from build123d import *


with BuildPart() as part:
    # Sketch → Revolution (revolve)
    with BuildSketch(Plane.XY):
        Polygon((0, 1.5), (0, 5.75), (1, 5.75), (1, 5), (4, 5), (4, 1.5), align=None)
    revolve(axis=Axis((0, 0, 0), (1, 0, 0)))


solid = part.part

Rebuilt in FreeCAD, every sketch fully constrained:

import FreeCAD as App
import Part
import Sketcher

V = App.Vector
Q = App.Units.Quantity

doc = App.newDocument("Part")
body = doc.addObject("PartDesign::Body", "Body")

sketch1 = body.newObject("Sketcher::SketchObject", "Sketch")
sketch1.AttachmentSupport = (doc.getObject("XY_Plane"), [""])
sketch1.MapMode = "FlatFace"
sketch1.addGeometry(Part.LineSegment(V(0, 5.8, 0), V(0, 1.5, 0)), False)
sketch1.addGeometry(Part.LineSegment(V(0, 1.5, 0), V(4, 1.5, 0)), False)
sketch1.addGeometry(Part.LineSegment(V(4, 1.5, 0), V(4, 5, 0)), False)
sketch1.addGeometry(Part.LineSegment(V(4, 5, 0), V(1, 5, 0)), False)
sketch1.addGeometry(Part.LineSegment(V(1, 5, 0), V(1, 5.8, 0)), False)
sketch1.addGeometry(Part.LineSegment(V(1, 5.8, 0), V(0, 5.8, 0)), False)
sketch1.addConstraint(Sketcher.Constraint("Coincident", 0, 2, 1, 1))
sketch1.addConstraint(Sketcher.Constraint("Coincident", 1, 2, 2, 1))
sketch1.addConstraint(Sketcher.Constraint("Coincident", 2, 2, 3, 1))
sketch1.addConstraint(Sketcher.Constraint("Coincident", 3, 2, 4, 1))
sketch1.addConstraint(Sketcher.Constraint("Coincident", 4, 2, 5, 1))
sketch1.addConstraint(Sketcher.Constraint("Coincident", 5, 2, 0, 1))
sketch1.addConstraint(Sketcher.Constraint("Vertical", 0))
sketch1.addConstraint(Sketcher.Constraint("Horizontal", 1))
sketch1.addConstraint(Sketcher.Constraint("Vertical", 2))
sketch1.addConstraint(Sketcher.Constraint("Horizontal", 3))
sketch1.addConstraint(Sketcher.Constraint("Vertical", 4))
sketch1.addConstraint(Sketcher.Constraint("Horizontal", 5))
sketch1.addConstraint(Sketcher.Constraint("PointOnObject", 0, 2, -2))
sketch1.addConstraint(Sketcher.Constraint("DistanceX", 1, 1, 1, 2, Q("4 mm")))
sketch1.addConstraint(Sketcher.Constraint("DistanceX", 3, 2, 3, 1, Q("3 mm")))
sketch1.addConstraint(Sketcher.Constraint("DistanceY", 2, 1, 2, 2, Q("3.5 mm")))
sketch1.addConstraint(Sketcher.Constraint("DistanceY", -1, 1, 2, 2, Q("5 mm")))
sketch1.addConstraint(Sketcher.Constraint("DistanceY", 0, 2, 0, 1, Q("4.25 mm")))
revolution = body.newObject("PartDesign::Revolution", "Revolution")
revolution.Profile = sketch1
revolution.ReferenceAxis = (sketch1, ["H_Axis"])
revolution.Angle = 360

doc.recompute()
